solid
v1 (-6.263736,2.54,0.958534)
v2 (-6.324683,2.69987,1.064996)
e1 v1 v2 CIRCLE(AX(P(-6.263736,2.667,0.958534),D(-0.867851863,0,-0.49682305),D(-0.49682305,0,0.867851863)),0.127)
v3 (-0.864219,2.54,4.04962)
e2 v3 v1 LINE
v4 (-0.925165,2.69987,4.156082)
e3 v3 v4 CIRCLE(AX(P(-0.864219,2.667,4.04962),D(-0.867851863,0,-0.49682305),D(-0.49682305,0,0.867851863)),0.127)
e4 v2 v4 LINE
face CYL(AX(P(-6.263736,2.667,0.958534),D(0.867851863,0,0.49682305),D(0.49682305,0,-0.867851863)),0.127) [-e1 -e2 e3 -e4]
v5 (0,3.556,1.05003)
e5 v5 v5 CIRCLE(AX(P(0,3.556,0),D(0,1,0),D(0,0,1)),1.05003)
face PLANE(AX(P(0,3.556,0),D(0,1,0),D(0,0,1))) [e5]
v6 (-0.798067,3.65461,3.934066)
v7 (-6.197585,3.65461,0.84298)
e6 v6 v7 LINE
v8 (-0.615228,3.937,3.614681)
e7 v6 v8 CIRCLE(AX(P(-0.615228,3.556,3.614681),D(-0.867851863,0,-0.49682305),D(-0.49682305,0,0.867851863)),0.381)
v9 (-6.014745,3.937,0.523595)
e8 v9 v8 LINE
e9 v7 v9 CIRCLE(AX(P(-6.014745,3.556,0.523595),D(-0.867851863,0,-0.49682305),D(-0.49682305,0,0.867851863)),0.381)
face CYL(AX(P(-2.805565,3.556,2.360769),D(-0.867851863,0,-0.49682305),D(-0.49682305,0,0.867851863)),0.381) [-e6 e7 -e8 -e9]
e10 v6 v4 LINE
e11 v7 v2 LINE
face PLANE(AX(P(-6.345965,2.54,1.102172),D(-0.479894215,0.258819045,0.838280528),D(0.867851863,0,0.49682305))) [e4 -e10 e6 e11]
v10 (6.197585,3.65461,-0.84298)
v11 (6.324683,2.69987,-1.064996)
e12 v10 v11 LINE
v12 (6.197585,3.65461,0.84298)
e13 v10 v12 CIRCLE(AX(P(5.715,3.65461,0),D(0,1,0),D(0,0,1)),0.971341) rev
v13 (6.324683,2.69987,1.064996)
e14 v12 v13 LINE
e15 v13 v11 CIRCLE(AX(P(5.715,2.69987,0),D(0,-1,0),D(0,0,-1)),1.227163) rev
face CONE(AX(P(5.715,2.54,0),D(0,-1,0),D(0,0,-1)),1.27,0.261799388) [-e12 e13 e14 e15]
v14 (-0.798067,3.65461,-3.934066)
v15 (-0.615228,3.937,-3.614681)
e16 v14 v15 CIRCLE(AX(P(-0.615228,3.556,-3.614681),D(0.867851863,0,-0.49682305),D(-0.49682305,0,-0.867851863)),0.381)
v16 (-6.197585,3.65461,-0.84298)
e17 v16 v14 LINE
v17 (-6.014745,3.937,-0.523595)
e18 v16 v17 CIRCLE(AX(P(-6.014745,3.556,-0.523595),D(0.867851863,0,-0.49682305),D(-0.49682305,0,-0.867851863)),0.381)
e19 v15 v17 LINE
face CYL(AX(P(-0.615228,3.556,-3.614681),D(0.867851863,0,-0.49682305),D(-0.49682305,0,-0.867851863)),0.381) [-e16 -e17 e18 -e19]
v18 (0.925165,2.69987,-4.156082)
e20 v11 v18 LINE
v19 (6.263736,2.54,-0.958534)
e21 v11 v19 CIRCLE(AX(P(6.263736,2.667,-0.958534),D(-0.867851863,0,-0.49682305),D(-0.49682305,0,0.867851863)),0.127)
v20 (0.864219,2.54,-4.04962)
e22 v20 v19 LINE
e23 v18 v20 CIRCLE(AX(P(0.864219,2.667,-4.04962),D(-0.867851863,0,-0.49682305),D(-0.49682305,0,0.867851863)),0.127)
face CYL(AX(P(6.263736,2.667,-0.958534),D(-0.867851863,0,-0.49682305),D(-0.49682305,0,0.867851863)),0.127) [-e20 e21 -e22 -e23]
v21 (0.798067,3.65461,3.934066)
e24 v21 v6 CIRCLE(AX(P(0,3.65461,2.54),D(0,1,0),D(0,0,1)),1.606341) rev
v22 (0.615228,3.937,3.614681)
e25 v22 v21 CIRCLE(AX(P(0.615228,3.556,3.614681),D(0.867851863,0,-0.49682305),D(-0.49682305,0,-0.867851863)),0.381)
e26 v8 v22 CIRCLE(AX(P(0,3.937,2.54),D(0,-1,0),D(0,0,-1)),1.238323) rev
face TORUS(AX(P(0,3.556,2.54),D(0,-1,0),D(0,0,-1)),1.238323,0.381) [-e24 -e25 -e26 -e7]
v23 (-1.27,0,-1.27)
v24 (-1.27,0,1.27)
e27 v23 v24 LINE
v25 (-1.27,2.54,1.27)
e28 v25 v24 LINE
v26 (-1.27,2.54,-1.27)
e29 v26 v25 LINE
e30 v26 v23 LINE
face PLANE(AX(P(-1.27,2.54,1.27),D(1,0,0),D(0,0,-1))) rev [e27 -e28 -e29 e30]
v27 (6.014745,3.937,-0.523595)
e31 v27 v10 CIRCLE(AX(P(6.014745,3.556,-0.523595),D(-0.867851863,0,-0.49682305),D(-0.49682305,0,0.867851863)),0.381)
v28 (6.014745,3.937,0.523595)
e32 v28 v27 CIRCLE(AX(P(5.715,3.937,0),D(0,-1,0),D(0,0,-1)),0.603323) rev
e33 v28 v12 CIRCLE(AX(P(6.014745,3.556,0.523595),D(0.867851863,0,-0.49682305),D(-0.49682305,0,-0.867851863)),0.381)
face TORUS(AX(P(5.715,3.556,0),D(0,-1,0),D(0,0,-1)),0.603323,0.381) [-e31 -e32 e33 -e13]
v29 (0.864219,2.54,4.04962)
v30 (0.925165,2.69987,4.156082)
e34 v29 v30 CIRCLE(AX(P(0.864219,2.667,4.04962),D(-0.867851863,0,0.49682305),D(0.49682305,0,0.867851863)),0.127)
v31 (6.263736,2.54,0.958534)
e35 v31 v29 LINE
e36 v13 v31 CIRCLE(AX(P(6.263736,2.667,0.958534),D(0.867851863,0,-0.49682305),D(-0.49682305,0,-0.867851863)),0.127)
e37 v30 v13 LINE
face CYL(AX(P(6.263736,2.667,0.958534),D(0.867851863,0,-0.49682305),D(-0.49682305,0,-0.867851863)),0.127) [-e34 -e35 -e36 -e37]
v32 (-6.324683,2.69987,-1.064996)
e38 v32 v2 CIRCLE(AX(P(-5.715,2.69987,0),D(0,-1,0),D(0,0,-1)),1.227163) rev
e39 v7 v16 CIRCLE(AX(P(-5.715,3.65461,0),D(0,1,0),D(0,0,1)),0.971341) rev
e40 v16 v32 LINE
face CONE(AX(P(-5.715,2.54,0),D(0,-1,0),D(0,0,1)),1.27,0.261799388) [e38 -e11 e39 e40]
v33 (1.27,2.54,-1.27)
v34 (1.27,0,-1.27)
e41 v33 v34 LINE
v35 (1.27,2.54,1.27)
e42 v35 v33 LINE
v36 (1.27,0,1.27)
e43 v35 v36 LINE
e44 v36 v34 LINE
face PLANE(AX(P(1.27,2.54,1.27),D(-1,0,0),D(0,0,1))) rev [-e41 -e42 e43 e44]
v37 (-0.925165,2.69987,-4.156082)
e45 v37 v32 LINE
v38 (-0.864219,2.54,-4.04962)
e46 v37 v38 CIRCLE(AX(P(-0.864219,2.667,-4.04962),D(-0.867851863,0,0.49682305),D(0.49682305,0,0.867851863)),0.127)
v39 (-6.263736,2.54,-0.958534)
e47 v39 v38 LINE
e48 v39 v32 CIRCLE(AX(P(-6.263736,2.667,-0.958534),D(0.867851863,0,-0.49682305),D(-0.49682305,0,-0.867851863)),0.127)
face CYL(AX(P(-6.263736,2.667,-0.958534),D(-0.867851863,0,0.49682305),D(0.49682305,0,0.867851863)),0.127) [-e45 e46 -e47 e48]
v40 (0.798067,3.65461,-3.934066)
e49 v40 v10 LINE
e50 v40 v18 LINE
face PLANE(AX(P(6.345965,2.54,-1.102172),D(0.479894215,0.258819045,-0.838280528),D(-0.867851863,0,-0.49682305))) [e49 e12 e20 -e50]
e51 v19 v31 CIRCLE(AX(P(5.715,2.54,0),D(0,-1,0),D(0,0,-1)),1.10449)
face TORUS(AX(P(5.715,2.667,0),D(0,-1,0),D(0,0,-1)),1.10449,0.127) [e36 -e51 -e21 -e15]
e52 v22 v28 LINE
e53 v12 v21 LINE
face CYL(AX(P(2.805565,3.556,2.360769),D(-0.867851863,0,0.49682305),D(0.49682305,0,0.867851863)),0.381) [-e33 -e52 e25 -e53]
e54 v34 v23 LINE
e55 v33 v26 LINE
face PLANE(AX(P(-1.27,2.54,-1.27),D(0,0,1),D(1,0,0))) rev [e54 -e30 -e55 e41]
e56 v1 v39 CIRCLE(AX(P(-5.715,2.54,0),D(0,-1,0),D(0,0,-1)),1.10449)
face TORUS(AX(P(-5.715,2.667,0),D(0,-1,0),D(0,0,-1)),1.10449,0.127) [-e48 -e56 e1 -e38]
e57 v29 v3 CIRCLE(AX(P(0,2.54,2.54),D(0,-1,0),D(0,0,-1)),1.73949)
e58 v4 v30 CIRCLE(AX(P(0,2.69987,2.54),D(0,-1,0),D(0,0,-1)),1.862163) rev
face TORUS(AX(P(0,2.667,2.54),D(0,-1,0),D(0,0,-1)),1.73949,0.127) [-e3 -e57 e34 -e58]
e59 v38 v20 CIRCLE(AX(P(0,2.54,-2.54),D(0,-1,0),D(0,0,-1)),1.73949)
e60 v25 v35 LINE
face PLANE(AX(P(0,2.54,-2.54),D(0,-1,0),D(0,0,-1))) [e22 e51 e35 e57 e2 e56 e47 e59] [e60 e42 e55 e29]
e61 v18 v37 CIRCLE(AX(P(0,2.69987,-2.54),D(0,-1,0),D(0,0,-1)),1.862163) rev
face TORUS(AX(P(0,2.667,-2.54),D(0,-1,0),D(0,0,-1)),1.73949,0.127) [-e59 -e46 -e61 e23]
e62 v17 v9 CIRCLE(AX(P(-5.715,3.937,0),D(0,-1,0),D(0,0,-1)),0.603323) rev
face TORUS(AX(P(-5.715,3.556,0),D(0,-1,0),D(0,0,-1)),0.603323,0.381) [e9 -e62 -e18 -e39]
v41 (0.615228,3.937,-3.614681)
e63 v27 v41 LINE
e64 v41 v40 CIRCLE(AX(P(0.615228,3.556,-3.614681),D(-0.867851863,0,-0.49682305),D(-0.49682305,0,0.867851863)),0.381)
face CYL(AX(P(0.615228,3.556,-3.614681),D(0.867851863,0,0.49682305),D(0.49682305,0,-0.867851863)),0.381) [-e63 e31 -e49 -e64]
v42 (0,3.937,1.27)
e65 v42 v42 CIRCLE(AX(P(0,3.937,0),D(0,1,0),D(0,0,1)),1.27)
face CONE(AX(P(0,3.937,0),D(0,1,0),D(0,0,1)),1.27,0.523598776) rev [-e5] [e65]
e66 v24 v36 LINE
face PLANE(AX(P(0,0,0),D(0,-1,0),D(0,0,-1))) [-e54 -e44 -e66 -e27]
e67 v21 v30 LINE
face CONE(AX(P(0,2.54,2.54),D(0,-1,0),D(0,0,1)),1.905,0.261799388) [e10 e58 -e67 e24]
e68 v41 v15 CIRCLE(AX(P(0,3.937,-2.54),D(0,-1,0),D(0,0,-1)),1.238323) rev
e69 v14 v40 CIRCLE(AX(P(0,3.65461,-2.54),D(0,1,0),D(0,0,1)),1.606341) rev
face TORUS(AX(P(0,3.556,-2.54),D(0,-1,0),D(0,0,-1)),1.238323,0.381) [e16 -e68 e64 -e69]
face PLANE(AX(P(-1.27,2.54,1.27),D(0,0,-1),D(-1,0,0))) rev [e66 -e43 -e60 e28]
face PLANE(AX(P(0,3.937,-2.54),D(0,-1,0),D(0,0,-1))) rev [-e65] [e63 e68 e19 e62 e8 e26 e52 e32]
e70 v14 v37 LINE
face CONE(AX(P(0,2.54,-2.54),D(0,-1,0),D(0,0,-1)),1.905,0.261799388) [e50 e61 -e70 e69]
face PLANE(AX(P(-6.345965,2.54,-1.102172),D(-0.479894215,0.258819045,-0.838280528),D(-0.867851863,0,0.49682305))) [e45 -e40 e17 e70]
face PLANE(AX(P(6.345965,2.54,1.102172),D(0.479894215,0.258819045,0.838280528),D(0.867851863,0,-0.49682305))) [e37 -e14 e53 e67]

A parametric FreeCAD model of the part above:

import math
import FreeCAD as App
import Part
import Sketcher
from FreeCAD import Vector
Q = App.Units.Quantity


def edges_at(feature, points):
    """Names of the edges that pass closest to the given points."""
    edges = feature.Shape.Edges
    near = lambda p: min(range(len(edges)), key=lambda i: edges[i].distToShape(Part.Vertex(*p))[0])
    return sorted({f"Edge{near(p) + 1}" for p in points})


def add_polygon(sketch, points):
    """Adds a closed chain of lines whose ends are joined by coincident constraints."""
    first, n = sketch.GeometryCount, len(points)
    for a, b in zip(points, points[1:] + points[:1]):
        sketch.addGeometry(Part.LineSegment(App.Vector(*a, 0), App.Vector(*b, 0)), False)
    for i in range(n):
        sketch.addConstraint(Sketcher.Constraint("Coincident", first + i, 2, first + (i + 1) % n, 1))

doc = App.newDocument("Part")
body = doc.addObject("PartDesign::Body", "Body")

# Sketch on XZ plane
sketch1 = body.newObject("Sketcher::SketchObject", "Sketch")
sketch1.AttachmentSupport = (doc.getObject("XZ_Plane"), [""])
sketch1.MapMode = "FlatFace"
add_polygon(sketch1, [(-1.3, -1.3), (-1.3, 1.3), (1.3, 1.3), (1.3, -1.3)])  # lines 0-3
sketch1.addConstraint([
    Sketcher.Constraint("Vertical", 0),
    Sketcher.Constraint("Horizontal", 1),
    Sketcher.Constraint("Vertical", 2),
    Sketcher.Constraint("Horizontal", 3),
    Sketcher.Constraint("Symmetric", 0, 2, 2, 2, -1, 1),
    Sketcher.Constraint("Equal", 3, 0),
    Sketcher.Constraint("DistanceX", 1, 1, 1, 2, Q("0.1 in")),
])
pad1 = body.newObject("PartDesign::Pad", "Pad")
pad1.Profile = sketch1
pad1.Length = Q("0.1 in")
pad1.Reversed = True

# Sketch on XZ plane
sketch2 = body.newObject("Sketcher::SketchObject", "Sketch001")
sketch2.AttachmentSupport = (doc.getObject("XZ_Plane"), [""])
sketch2.MapMode = "FlatFace"
sketch2.AttachmentOffset = App.Placement(Vector(0, 0, -0.1 * 25.4), App.Rotation())
sketch2.addGeometry([
    Part.LineSegment(Vector(6.3, -1.1, 0), Vector(0.9, -4.2, 0)),  # 0
    Part.ArcOfCircle(Part.Circle(Vector(0, -2.5, 0), Vector(0, 0, 1), 1.9), math.radians(-120), math.radians(-60)),  # 1
    Part.LineSegment(Vector(-0.9, -4.2, 0), Vector(-6.3, -1.1, 0)),  # 2
    Part.ArcOfCircle(Part.Circle(Vector(-5.7, 0, 0), Vector(0, 0, 1), 1.3), math.radians(120), math.radians(240)),  # 3
    Part.LineSegment(Vector(-6.3, 1.1, 0), Vector(-0.9, 4.2, 0)),  # 4
    Part.ArcOfCircle(Part.Circle(Vector(0, 2.5, 0), Vector(0, 0, 1), 1.9), math.radians(60), math.radians(120)),  # 5
    Part.LineSegment(Vector(0.9, 4.2, 0), Vector(6.3, 1.1, 0)),  # 6
    Part.ArcOfCircle(Part.Circle(Vector(5.7, 0, 0), Vector(0, 0, 1), 1.3), math.radians(-60), math.radians(60)),  # 7
], False)
sketch2.addConstraint([
    Sketcher.Constraint("Tangent", 0, 2, 1, 2),
    Sketcher.Constraint("Tangent", 1, 1, 2, 1),
    Sketcher.Constraint("Tangent", 2, 2, 3, 2),
    Sketcher.Constraint("Tangent", 3, 1, 4, 1),
    Sketcher.Constraint("Tangent", 4, 2, 5, 2),
    Sketcher.Constraint("Tangent", 5, 1, 6, 1),
    Sketcher.Constraint("Tangent", 6, 2, 7, 2),
    Sketcher.Constraint("Tangent", 7, 1, 0, 1),
    Sketcher.Constraint("Equal", 1, 5),
    Sketcher.Constraint("Equal", 3, 7),
    Sketcher.Constraint("Symmetric", 1, 3, 5, 3, -1, 1),
    Sketcher.Constraint("Symmetric", 3, 3, 7, 3, -1, 1),
    Sketcher.Constraint("Symmetric", 0, 2, 1, 1, -2),
    Sketcher.Constraint("Radius", 3, Q("0.05 in")),
    Sketcher.Constraint("Radius", 1, Q("0.075 in")),
    Sketcher.Constraint("DistanceY", 1, 3, -1, 1, Q("0.1 in")),
    Sketcher.Constraint("DistanceX", 3, 3, 7, 3, Q("0.45 in")),
])
pad2 = body.newObject("PartDesign::Pad", "Pad001")
pad2.Profile = sketch2
pad2.Length = Q("0.055 in")
pad2.Reversed = True
pad2.TaperAngle = -15
doc.recompute()

fillet = body.newObject("PartDesign::Fillet", "Fillet")
fillet.Base = (pad2, edges_at(pad2, [
    (0, 3.937, -4.071),
    (-3.46, 3.937, -2.323),
    (-6.611, 3.937, 0),
    (-3.46, 3.937, 2.323),
    (0, 3.937, 4.071),
    (3.46, 3.937, 2.323),
    (6.611, 3.937, 0),
    (3.46, 3.937, -2.323),
]))
fillet.Radius = Q("0.015 in")
doc.recompute()

fillet2 = body.newObject("PartDesign::Fillet", "Fillet001")
fillet2.Base = (fillet, edges_at(fillet, [
    (0, 2.54, -4.445),
    (-3.646, 2.54, -2.648),
    (-6.985, 2.54, 0),
    (-3.646, 2.54, 2.648),
    (0, 2.54, 4.445),
    (3.646, 2.54, 2.648),
    (6.985, 2.54, 0),
    (3.646, 2.54, -2.648),
]))
fillet2.Radius = Q("0.005 in")

# Sketch on XZ plane
sketch3 = body.newObject("Sketcher::SketchObject", "Sketch002")
sketch3.AttachmentSupport = (doc.getObject("XZ_Plane"), [""])
sketch3.MapMode = "FlatFace"
sketch3.AttachmentOffset = App.Placement(Vector(0, 0, -0.155 * 25.4), App.Rotation())
sketch3.addGeometry(Part.Circle(Vector(0, 0, 0), Vector(0, 0, 1), 1.3), False)
sketch3.addConstraint([
    Sketcher.Constraint("Coincident", 0, 3, -1, 1),
    Sketcher.Constraint("Diameter", 0, Q("0.1 in")),
])
pocket1 = body.newObject("PartDesign::Pocket", "Pocket")
pocket1.Profile = sketch3
pocket1.Length = Q("0.015 in")
pocket1.Reversed = True
pocket1.TaperAngle = -30

doc.recompute()
